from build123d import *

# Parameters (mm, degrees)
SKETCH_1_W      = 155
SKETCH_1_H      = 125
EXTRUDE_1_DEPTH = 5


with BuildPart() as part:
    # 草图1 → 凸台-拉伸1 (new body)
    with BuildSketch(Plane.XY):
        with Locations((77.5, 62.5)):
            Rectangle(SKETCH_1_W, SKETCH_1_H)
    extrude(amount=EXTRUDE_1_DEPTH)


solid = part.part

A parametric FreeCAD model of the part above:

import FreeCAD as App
import Part
import Sketcher


def add_polygon(sketch, points):
    """Adds a closed chain of lines whose ends are joined by coincident constraints."""
    first, n = sketch.GeometryCount, len(points)
    for a, b in zip(points, points[1:] + points[:1]):
        sketch.addGeometry(Part.LineSegment(App.Vector(*a, 0), App.Vector(*b, 0)), False)
    for i in range(n):
        sketch.addConstraint(Sketcher.Constraint("Coincident", first + i, 2, first + (i + 1) % n, 1))

doc = App.newDocument("Part")
body = doc.addObject("PartDesign::Body", "Body")

# Sketch on XY plane
sketch1 = body.newObject("Sketcher::SketchObject", "Sketch")
sketch1.AttachmentSupport = (doc.getObject("XY_Plane"), [""])
sketch1.MapMode = "FlatFace"
add_polygon(sketch1, [(0, 125), (0, 0), (155, 0), (155, 125)])  # lines 0-3
sketch1.addConstraint(Sketcher.Constraint("Vertical", 0))
sketch1.addConstraint(Sketcher.Constraint("Horizontal", 1))
sketch1.addConstraint(Sketcher.Constraint("Vertical", 2))
sketch1.addConstraint(Sketcher.Constraint("Horizontal", 3))
sketch1.addConstraint(Sketcher.Constraint("Coincident", 0, 2, -1, 1))
sketch1.addConstraint(Sketcher.Constraint("DistanceX", 1, 1, 1, 2, 155.0))
sketch1.addConstraint(Sketcher.Constraint("DistanceY", 0, 2, 0, 1, 125.0))
pad1 = body.newObject("PartDesign::Pad", "Pad")
pad1.Profile = sketch1
pad1.Length = 5

doc.recompute()
